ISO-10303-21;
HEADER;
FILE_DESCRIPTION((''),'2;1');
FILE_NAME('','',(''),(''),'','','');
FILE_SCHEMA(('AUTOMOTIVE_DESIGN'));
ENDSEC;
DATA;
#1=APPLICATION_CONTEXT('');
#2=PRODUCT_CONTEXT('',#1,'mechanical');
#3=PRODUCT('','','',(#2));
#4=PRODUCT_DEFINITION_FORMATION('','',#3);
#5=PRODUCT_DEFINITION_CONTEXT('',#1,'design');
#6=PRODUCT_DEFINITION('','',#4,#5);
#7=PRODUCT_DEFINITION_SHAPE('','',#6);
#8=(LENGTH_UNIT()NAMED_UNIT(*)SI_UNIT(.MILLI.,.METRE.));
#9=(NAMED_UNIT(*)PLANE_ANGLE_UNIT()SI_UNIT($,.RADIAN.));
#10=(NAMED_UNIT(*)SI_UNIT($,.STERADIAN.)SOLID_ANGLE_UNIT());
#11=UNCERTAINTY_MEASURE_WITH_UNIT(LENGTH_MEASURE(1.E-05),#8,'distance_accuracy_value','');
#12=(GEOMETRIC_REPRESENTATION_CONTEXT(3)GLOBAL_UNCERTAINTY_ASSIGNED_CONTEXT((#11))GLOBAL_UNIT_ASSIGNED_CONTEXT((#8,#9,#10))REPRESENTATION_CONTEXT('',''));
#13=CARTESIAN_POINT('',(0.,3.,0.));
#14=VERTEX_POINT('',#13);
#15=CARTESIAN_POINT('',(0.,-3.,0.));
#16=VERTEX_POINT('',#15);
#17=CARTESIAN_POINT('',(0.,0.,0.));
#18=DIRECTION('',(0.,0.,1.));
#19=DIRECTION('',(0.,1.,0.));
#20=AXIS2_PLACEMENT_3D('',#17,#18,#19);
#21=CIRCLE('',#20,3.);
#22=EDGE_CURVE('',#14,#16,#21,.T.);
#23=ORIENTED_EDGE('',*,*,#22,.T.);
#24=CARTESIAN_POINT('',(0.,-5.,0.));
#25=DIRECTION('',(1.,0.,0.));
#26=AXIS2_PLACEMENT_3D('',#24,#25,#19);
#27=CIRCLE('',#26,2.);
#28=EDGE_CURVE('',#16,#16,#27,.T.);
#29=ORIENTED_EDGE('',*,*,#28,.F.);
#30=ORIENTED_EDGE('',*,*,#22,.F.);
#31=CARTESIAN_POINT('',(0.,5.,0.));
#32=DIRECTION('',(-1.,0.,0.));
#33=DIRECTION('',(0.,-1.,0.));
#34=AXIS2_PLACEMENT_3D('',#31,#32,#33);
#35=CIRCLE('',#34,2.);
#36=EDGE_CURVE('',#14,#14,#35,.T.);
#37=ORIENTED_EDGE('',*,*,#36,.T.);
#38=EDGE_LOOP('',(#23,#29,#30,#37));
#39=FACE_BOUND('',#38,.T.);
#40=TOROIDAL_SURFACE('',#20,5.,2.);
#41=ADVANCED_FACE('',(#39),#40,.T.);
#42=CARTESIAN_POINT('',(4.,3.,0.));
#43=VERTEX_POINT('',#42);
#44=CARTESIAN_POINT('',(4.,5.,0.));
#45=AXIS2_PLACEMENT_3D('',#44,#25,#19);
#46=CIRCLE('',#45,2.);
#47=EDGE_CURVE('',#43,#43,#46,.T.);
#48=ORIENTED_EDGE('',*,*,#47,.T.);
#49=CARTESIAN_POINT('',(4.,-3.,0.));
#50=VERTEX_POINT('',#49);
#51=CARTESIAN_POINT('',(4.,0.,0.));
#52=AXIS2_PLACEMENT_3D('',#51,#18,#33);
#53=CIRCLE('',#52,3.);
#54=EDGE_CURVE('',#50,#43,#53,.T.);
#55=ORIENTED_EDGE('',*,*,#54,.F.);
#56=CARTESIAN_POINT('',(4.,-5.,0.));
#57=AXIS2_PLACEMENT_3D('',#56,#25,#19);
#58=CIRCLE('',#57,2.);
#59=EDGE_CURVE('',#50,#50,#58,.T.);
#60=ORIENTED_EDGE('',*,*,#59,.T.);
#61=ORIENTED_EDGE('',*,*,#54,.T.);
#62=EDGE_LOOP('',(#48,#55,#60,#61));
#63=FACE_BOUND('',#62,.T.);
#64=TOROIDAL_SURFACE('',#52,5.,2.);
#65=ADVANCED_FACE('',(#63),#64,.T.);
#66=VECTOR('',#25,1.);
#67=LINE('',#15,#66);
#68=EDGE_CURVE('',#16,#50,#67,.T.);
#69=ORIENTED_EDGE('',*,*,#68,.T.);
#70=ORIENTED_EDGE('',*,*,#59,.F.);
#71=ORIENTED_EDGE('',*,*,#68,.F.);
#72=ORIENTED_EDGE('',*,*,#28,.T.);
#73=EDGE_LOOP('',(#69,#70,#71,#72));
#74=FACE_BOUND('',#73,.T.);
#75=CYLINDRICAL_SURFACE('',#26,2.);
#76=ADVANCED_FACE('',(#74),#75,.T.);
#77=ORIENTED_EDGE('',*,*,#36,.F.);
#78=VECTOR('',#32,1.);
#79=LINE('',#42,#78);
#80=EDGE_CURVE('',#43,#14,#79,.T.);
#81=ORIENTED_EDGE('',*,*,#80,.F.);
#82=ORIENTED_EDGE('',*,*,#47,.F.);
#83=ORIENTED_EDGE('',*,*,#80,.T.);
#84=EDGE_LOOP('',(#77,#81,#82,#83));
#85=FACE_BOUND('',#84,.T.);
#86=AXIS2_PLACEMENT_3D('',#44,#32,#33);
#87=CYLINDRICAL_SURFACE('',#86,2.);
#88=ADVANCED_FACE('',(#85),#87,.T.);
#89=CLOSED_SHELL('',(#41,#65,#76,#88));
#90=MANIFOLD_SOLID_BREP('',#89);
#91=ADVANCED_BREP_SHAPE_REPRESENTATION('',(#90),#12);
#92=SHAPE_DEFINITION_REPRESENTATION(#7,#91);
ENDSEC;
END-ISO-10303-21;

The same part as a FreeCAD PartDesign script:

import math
import FreeCAD as App
import Part
import Sketcher

doc = App.newDocument("Part")
body = doc.addObject("PartDesign::Body", "Body")

sketch1 = body.newObject("Sketcher::SketchObject", "Sketch")
sketch1.AttachmentSupport = (doc.getObject("YZ_Plane"), [""])
sketch1.MapMode = "FlatFace"
sketch1.addGeometry(Part.Circle(App.Vector(-5, 0, 0), App.Vector(0, 0, 1), 2), False)
sketch1.addConstraint([
    Sketcher.Constraint("PointOnObject", 0, 3, -1),
    Sketcher.Constraint("Diameter", 0, 4.0),
    Sketcher.Constraint("DistanceX", 0, 3, -1, 1, 5.0),
])

sketch2 = body.newObject("Sketcher::SketchObject", "Sketch001")
sketch2.AttachmentSupport = (doc.getObject("XY_Plane"), [""])
sketch2.MapMode = "FlatFace"
sketch2.addGeometry([
    Part.LineSegment(App.Vector(0, -5, 0), App.Vector(4, -5, 0)),
    Part.ArcOfCircle(Part.Circle(App.Vector(4, 0, 0), App.Vector(0, 0, 1), 5), math.radians(-90), math.radians(90)),
    Part.LineSegment(App.Vector(4, 5, 0), App.Vector(0, 5, 0)),
    Part.ArcOfCircle(Part.Circle(App.Vector(0, 0, 0), App.Vector(0, 0, 1), 5), math.radians(90), math.radians(270)),
], False)
sketch2.addConstraint([
    Sketcher.Constraint("Tangent", 0, 2, 1, 1),
    Sketcher.Constraint("Tangent", 1, 2, 2, 1),
    Sketcher.Constraint("Tangent", 2, 2, 3, 1),
    Sketcher.Constraint("Tangent", 3, 2, 0, 1),
    Sketcher.Constraint("Horizontal", 0),
    Sketcher.Constraint("Horizontal", 2),
    Sketcher.Constraint("Coincident", 3, 3, -1, 1),
    Sketcher.Constraint("Radius", 1, 5.0),
    Sketcher.Constraint("DistanceX", 0, 1, 0, 2, 4.0),
])
doc.recompute()

additivepipe = body.newObject("PartDesign::AdditivePipe", "AdditivePipe")
additivepipe.Profile = sketch1
additivepipe.Spine = (sketch2, ["Edge1", "Edge2", "Edge3", "Edge4"])

doc.recompute()
